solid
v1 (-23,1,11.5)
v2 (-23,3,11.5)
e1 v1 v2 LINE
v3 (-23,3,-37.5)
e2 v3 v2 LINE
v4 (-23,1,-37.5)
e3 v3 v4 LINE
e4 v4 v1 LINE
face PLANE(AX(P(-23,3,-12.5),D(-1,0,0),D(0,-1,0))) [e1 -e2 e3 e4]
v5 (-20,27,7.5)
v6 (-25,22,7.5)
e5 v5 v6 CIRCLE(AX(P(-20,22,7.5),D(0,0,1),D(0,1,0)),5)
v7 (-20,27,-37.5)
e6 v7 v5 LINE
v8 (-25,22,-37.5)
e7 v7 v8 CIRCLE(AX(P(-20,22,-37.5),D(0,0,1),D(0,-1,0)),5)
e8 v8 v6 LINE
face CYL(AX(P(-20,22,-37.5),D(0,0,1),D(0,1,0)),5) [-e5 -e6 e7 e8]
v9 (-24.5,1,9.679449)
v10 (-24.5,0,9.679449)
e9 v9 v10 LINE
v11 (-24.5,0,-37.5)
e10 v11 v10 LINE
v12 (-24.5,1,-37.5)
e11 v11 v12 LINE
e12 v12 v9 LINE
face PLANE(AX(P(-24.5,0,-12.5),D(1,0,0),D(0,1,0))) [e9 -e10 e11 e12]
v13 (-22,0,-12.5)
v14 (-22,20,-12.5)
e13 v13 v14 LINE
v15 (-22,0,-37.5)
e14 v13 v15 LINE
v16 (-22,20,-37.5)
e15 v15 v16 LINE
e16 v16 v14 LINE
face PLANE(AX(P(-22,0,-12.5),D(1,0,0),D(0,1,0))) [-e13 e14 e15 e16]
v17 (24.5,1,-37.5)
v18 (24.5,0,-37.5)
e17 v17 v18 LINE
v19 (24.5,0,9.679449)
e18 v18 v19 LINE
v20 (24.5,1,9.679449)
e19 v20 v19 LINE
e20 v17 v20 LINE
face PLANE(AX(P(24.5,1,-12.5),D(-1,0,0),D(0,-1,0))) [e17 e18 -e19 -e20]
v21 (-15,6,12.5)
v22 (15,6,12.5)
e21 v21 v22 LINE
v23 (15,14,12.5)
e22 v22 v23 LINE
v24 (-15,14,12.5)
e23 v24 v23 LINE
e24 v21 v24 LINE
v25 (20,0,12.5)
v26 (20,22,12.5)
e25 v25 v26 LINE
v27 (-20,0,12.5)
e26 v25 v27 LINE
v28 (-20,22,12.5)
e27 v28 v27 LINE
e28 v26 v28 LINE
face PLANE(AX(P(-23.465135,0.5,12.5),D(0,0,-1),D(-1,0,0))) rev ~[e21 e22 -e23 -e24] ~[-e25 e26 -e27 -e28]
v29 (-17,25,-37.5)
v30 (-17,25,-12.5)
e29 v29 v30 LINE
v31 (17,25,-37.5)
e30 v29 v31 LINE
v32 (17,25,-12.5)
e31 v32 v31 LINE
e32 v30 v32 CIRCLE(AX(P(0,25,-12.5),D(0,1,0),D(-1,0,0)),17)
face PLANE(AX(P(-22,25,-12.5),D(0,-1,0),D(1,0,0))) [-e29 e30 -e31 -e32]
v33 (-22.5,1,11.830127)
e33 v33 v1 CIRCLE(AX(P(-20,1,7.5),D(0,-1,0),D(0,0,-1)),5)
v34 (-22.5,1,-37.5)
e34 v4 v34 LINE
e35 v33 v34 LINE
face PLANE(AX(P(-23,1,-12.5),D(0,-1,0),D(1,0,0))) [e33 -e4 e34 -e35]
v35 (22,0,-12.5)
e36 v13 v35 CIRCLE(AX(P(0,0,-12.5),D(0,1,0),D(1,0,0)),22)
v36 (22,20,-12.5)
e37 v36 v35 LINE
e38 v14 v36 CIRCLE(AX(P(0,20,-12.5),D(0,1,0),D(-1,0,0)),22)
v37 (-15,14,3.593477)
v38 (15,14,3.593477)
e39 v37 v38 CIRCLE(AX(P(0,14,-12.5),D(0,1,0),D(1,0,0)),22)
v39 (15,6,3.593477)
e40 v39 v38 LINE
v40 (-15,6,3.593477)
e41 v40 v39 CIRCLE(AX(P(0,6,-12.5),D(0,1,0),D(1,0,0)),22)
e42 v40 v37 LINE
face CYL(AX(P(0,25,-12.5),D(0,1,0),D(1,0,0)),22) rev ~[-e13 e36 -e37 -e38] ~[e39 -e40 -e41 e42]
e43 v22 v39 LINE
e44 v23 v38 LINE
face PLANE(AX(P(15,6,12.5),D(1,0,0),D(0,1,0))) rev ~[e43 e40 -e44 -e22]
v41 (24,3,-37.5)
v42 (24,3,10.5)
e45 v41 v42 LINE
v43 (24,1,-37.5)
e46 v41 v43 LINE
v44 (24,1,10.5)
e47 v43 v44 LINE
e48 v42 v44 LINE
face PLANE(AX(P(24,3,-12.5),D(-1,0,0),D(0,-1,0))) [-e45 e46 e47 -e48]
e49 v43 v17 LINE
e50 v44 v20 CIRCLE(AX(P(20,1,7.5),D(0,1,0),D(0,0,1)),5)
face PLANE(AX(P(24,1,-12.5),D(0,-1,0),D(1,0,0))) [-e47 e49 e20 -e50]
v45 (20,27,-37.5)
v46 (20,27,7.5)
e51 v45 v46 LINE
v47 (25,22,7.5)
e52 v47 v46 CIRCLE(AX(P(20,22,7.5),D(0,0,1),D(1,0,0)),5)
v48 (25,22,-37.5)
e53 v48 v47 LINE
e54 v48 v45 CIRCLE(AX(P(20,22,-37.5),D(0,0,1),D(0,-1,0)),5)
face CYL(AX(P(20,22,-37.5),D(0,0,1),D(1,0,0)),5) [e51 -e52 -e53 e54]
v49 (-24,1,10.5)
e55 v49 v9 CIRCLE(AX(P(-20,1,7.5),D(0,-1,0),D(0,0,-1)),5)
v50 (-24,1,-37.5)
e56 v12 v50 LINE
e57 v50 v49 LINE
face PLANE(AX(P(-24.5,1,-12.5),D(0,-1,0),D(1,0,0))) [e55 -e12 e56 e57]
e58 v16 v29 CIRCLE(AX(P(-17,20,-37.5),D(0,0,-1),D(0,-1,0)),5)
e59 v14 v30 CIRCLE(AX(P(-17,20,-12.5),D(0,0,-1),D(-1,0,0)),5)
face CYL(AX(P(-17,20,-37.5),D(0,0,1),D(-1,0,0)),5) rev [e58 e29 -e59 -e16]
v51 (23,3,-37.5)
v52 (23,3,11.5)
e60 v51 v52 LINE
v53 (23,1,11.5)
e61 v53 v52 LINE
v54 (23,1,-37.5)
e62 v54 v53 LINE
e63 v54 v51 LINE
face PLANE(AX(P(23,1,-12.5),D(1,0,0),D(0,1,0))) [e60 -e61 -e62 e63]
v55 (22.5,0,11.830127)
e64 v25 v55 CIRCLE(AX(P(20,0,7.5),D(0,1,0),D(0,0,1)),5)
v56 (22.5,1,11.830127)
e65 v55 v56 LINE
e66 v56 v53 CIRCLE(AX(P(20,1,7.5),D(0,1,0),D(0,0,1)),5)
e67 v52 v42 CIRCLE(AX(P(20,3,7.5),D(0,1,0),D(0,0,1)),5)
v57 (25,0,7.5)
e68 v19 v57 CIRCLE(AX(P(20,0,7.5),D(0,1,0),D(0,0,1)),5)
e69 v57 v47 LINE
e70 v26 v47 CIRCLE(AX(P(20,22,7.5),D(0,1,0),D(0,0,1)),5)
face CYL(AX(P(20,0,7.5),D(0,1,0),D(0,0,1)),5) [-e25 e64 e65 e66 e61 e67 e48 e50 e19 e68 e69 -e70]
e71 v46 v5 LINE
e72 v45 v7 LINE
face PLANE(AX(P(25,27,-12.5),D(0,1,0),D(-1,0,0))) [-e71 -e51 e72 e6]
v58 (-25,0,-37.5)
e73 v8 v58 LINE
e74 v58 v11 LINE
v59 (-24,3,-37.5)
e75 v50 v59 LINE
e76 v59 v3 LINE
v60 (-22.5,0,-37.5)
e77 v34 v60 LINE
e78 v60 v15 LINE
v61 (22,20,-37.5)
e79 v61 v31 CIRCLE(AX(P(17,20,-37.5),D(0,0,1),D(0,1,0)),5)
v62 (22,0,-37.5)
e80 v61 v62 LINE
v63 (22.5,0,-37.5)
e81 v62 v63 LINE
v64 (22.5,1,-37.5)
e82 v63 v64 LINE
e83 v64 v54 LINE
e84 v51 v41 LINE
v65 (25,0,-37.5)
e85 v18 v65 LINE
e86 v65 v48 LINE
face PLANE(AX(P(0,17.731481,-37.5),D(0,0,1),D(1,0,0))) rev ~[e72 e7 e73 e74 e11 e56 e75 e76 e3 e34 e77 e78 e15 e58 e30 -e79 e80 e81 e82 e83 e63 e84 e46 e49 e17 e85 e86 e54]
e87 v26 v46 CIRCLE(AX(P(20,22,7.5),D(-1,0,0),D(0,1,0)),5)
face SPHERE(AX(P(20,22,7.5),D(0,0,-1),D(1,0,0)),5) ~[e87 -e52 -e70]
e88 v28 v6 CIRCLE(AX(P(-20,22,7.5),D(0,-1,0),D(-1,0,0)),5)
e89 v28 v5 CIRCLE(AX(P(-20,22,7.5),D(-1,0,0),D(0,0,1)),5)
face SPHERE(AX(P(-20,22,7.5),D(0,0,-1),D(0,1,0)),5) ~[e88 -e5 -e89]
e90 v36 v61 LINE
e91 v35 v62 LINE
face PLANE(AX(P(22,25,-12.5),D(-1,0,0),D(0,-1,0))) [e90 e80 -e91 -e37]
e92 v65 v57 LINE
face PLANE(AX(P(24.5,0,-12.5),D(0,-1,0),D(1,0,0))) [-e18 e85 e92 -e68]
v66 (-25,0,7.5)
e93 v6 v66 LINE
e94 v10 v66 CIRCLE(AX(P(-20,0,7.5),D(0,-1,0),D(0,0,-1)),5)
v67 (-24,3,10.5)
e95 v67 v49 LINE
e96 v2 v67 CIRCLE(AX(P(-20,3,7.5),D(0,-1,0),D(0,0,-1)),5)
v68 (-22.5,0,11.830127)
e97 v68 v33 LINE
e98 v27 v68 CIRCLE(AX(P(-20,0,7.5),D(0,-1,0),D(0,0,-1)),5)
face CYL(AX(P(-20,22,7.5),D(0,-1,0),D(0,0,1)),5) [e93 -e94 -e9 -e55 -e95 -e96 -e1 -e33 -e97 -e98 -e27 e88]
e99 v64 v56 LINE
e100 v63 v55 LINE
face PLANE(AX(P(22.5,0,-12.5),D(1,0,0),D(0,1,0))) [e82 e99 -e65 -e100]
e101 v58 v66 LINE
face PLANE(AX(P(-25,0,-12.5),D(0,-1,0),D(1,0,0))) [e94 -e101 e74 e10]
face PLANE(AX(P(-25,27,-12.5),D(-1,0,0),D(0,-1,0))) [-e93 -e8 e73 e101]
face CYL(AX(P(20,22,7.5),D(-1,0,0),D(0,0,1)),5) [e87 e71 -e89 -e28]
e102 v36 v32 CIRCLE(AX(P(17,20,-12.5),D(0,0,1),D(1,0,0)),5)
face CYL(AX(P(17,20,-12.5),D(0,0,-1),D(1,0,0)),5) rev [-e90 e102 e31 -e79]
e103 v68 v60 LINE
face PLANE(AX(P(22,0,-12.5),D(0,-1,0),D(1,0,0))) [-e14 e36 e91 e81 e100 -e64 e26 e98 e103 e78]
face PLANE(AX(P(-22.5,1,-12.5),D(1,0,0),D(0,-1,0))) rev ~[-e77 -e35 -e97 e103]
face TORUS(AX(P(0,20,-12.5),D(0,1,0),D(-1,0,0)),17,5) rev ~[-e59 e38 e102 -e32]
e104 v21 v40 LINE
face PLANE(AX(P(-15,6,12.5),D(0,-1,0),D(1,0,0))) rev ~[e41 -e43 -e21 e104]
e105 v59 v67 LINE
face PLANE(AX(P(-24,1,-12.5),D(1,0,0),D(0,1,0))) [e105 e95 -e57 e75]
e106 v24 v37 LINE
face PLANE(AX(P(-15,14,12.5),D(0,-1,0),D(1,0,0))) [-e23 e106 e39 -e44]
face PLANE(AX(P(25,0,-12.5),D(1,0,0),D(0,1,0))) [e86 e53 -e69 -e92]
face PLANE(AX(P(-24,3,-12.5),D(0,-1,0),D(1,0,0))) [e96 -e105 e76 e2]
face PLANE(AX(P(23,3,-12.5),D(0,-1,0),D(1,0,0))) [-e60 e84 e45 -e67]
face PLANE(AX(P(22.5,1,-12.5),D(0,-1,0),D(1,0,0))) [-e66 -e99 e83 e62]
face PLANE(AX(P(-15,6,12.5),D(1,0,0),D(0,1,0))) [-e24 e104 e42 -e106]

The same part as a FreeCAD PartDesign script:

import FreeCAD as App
import Part
import Sketcher


def edges_at(feature, points):
    """Names of the edges that pass closest to the given points."""
    edges = feature.Shape.Edges
    near = lambda p: min(range(len(edges)), key=lambda i: edges[i].distToShape(Part.Vertex(*p))[0])
    return sorted({f"Edge{near(p) + 1}" for p in points})

doc = App.newDocument("Part")
body = doc.addObject("PartDesign::Body", "Body")

# Sketch on XZ plane
sketch1 = doc.addObject("Sketcher::SketchObject", "Sketch")
body.addObject(sketch1)
sketch1.AttachmentSupport = (doc.XZ_Plane, [""])
sketch1.MapMode = "FlatFace"
sketch1.addGeometry([
    Part.LineSegment(App.Vector(-30, -12, 0), App.Vector(-30, 12, 0)),
    Part.LineSegment(App.Vector(-30, 12, 0), App.Vector(30, 12, 0)),
    Part.LineSegment(App.Vector(30, 12, 0), App.Vector(30, -12, 0)),
    Part.LineSegment(App.Vector(30, -12, 0), App.Vector(-30, -12, 0)),
], False)
sketch1.addConstraint([
    Sketcher.Constraint("Coincident", 0, 2, 1, 1),
    Sketcher.Constraint("Coincident", 1, 2, 2, 1),
    Sketcher.Constraint("Coincident", 2, 2, 3, 1),
    Sketcher.Constraint("Coincident", 3, 2, 0, 1),
    Sketcher.Constraint("Vertical", 0),
    Sketcher.Constraint("Horizontal", 1),
    Sketcher.Constraint("Vertical", 2),
    Sketcher.Constraint("Horizontal", 3),
    Sketcher.Constraint("Symmetric", 0, 2, 2, 2, -1, 1),
    Sketcher.Constraint("DistanceX", 1, 1, 1, 2, 60.0),
    Sketcher.Constraint("DistanceY", 0, 1, 0, 2, 25.0),
])
pad1 = doc.addObject("PartDesign::Pad", "Pad")
body.addObject(pad1)
pad1.Profile = sketch1
pad1.Length = 25
pad1.Reversed = True

# Sketch on XZ plane
sketch2 = doc.addObject("Sketcher::SketchObject", "Sketch001")
body.addObject(sketch2)
sketch2.AttachmentSupport = (doc.XZ_Plane, [""])
sketch2.MapMode = "FlatFace"
sketch2.AttachmentOffset = App.Placement(App.Vector(0, 0, -25), App.Rotation())
sketch2.addGeometry(Part.Circle(App.Vector(0, -12, 0), App.Vector(0, 0, 1), 22), False)
sketch2.addConstraint([
    Sketcher.Constraint("PointOnObject", 0, 3, -2),
    Sketcher.Constraint("Diameter", 0, 44.0),
    Sketcher.Constraint("DistanceY", 0, 3, -1, 1, 12.5),
])
pocket1 = doc.addObject("PartDesign::Pocket", "Pocket")
body.addObject(pocket1)
pocket1.Profile = sketch2
pocket1.Length = 25
pocket1.Reversed = True

# Sketch on YZ plane
sketch3 = doc.addObject("Sketcher::SketchObject", "Sketch002")
body.addObject(sketch3)
sketch3.AttachmentSupport = (doc.YZ_Plane, [""])
sketch3.MapMode = "FlatFace"
sketch3.AttachmentOffset = App.Placement(App.Vector(0, 0, 30), App.Rotation())
sketch3.addGeometry([
    Part.LineSegment(App.Vector(28, 19, 0), App.Vector(-5, 19, 0)),
    Part.LineSegment(App.Vector(-5, 19, 0), App.Vector(-5, -20, 0)),
    Part.LineSegment(App.Vector(-5, -20, 0), App.Vector(28, -20, 0)),
    Part.LineSegment(App.Vector(28, -20, 0), App.Vector(28, 19, 0)),
], False)
sketch3.addConstraint([
    Sketcher.Constraint("Coincident", 0, 2, 1, 1),
    Sketcher.Constraint("Coincident", 1, 2, 2, 1),
    Sketcher.Constraint("Coincident", 2, 2, 3, 1),
    Sketcher.Constraint("Coincident", 3, 2, 0, 1),
    Sketcher.Constraint("Horizontal", 0),
    Sketcher.Constraint("Vertical", 1),
    Sketcher.Constraint("Horizontal", 2),
    Sketcher.Constraint("Vertical", 3),
    Sketcher.Constraint("DistanceX", 0, 2, -1, 1, 4.8034),
    Sketcher.Constraint("DistanceX", 0, 2, 0, 1, 32.545982),
    Sketcher.Constraint("DistanceY", 1, 2, 1, 1, 39.331187),
    Sketcher.Constraint("DistanceY", -1, 1, 0, 2, 18.975573),
])
pocket2 = doc.addObject("PartDesign::Pocket", "Pocket001")
body.addObject(pocket2)
pocket2.Profile = sketch3
pocket2.Length = 5

# Sketch on YZ plane
sketch4 = doc.addObject("Sketcher::SketchObject", "Sketch003")
body.addObject(sketch4)
sketch4.AttachmentSupport = (doc.YZ_Plane, [""])
sketch4.MapMode = "FlatFace"
sketch4.AttachmentOffset = App.Placement(App.Vector(0, 0, -30), App.Rotation())
sketch4.addGeometry([
    Part.LineSegment(App.Vector(39, -41, 0), App.Vector(-8, -41, 0)),
    Part.LineSegment(App.Vector(-8, -41, 0), App.Vector(-8, 31, 0)),
    Part.LineSegment(App.Vector(-8, 31, 0), App.Vector(39, 31, 0)),
    Part.LineSegment(App.Vector(39, 31, 0), App.Vector(39, -41, 0)),
], False)
sketch4.addConstraint([
    Sketcher.Constraint("Coincident", 0, 2, 1, 1),
    Sketcher.Constraint("Coincident", 1, 2, 2, 1),
    Sketcher.Constraint("Coincident", 2, 2, 3, 1),
    Sketcher.Constraint("Coincident", 3, 2, 0, 1),
    Sketcher.Constraint("Horizontal", 0),
    Sketcher.Constraint("Vertical", 1),
    Sketcher.Constraint("Horizontal", 2),
    Sketcher.Constraint("Vertical", 3),
    Sketcher.Constraint("DistanceX", 0, 2, 0, 1, 47.315534),
    Sketcher.Constraint("DistanceY", 1, 1, 1, 2, 71.754195),
    Sketcher.Constraint("DistanceY", 0, 2, -1, 1, 41.211542),
    Sketcher.Constraint("DistanceX", 0, 2, -1, 1, 8.492727),
])
pocket3 = doc.addObject("PartDesign::Pocket", "Pocket002")
body.addObject(pocket3)
pocket3.Profile = sketch4
pocket3.Length = 5
pocket3.Reversed = True

# Sketch on XZ plane
sketch5 = doc.addObject("Sketcher::SketchObject", "Sketch004")
body.addObject(sketch5)
sketch5.AttachmentSupport = (doc.XZ_Plane, [""])
sketch5.MapMode = "FlatFace"
sketch5.AttachmentOffset = App.Placement(App.Vector(0, 0, -25), App.Rotation())
sketch5.addGeometry([
    Part.LineSegment(App.Vector(-25, -12, 0), App.Vector(-25, 12, 0)),
    Part.LineSegment(App.Vector(-25, 12, 0), App.Vector(25, 12, 0)),
    Part.LineSegment(App.Vector(25, 12, 0), App.Vector(25, -12, 0)),
    Part.LineSegment(App.Vector(25, -12, 0), App.Vector(-25, -12, 0)),
], False)
sketch5.addConstraint([
    Sketcher.Constraint("Coincident", 0, 2, 1, 1),
    Sketcher.Constraint("Coincident", 1, 2, 2, 1),
    Sketcher.Constraint("Coincident", 2, 2, 3, 1),
    Sketcher.Constraint("Coincident", 3, 2, 0, 1),
    Sketcher.Constraint("Vertical", 0),
    Sketcher.Constraint("Horizontal", 1),
    Sketcher.Constraint("Vertical", 2),
    Sketcher.Constraint("Horizontal", 3),
    Sketcher.Constraint("Symmetric", 0, 2, 2, 2, -1, 1),
    Sketcher.Constraint("DistanceX", 1, 1, 1, 2, 50.0),
    Sketcher.Constraint("DistanceY", 0, 1, 0, 2, 25.0),
])
pad2 = doc.addObject("PartDesign::Pad", "Pad001")
body.addObject(pad2)
pad2.Profile = sketch5
pad2.Length = 2
pad2.Reversed = True

# Sketch on XY plane
sketch6 = doc.addObject("Sketcher::SketchObject", "Sketch005")
body.addObject(sketch6)
sketch6.AttachmentSupport = (doc.XY_Plane, [""])
sketch6.MapMode = "FlatFace"
sketch6.AttachmentOffset = App.Placement(App.Vector(0, 0, -12.5), App.Rotation())
sketch6.addGeometry([
    Part.LineSegment(App.Vector(23, 0, 0), App.Vector(23, 3, 0)),  # 0
    Part.LineSegment(App.Vector(23, 3, 0), App.Vector(24, 3, 0)),  # 1
    Part.LineSegment(App.Vector(24, 3, 0), App.Vector(24, 0, 0)),  # 2
    Part.LineSegment(App.Vector(24, 0, 0), App.Vector(23, 0, 0)),  # 3
    Part.LineSegment(App.Vector(-23, 0, 0), App.Vector(-24, 0, 0)),  # 4
    Part.LineSegment(App.Vector(-24, 0, 0), App.Vector(-24, 3, 0)),  # 5
    Part.LineSegment(App.Vector(-24, 3, 0), App.Vector(-23, 3, 0)),  # 6
    Part.LineSegment(App.Vector(-23, 3, 0), App.Vector(-23, 0, 0)),  # 7
], False)
sketch6.addConstraint([
    Sketcher.Constraint("Coincident", 0, 2, 1, 1),
    Sketcher.Constraint("Coincident", 1, 2, 2, 1),
    Sketcher.Constraint("Coincident", 2, 2, 3, 1),
    Sketcher.Constraint("Coincident", 3, 2, 0, 1),
    Sketcher.Constraint("Coincident", 4, 2, 5, 1),
    Sketcher.Constraint("Coincident", 5, 2, 6, 1),
    Sketcher.Constraint("Coincident", 6, 2, 7, 1),
    Sketcher.Constraint("Coincident", 7, 2, 4, 1),
    Sketcher.Constraint("Vertical", 0),
    Sketcher.Constraint("Horizontal", 1),
    Sketcher.Constraint("Vertical", 2),
    Sketcher.Constraint("Horizontal", 3),
    Sketcher.Constraint("Horizontal", 4),
    Sketcher.Constraint("Vertical", 5),
    Sketcher.Constraint("Horizontal", 6),
    Sketcher.Constraint("Vertical", 7),
    Sketcher.Constraint("Symmetric", 2, 2, 4, 2, -1, 1),
    Sketcher.Constraint("Symmetric", 0, 2, 6, 2, -2),
    Sketcher.Constraint("PointOnObject", 2, 2, -1),
    Sketcher.Constraint("DistanceX", 1, 1, 1, 2, 1.0),
    Sketcher.Constraint("DistanceY", 0, 1, 0, 2, 3.0),
    Sketcher.Constraint("DistanceX", -1, 1, 0, 2, 23.0),
])
pocket4 = doc.addObject("PartDesign::Pocket", "Pocket003")
body.addObject(pocket4)
pocket4.Profile = sketch6
pocket4.Length = 38
pocket4.Reversed = True

# Sketch on XY plane
sketch7 = doc.addObject("Sketcher::SketchObject", "Sketch006")
body.addObject(sketch7)
sketch7.AttachmentSupport = (doc.XY_Plane, [""])
sketch7.MapMode = "FlatFace"
sketch7.AttachmentOffset = App.Placement(App.Vector(0, 0, -12.5), App.Rotation())
sketch7.addGeometry([
    Part.LineSegment(App.Vector(-24.5, 0, 0), App.Vector(-24.5, 1, 0)),  # 0
    Part.LineSegment(App.Vector(-24.5, 1, 0), App.Vector(-22.5, 1, 0)),  # 1
    Part.LineSegment(App.Vector(-22.5, 1, 0), App.Vector(-22.5, 0, 0)),  # 2
    Part.LineSegment(App.Vector(-22.5, 0, 0), App.Vector(-24.5, 0, 0)),  # 3
    Part.LineSegment(App.Vector(22.5, 0, 0), App.Vector(22.5, 1, 0)),  # 4
    Part.LineSegment(App.Vector(22.5, 1, 0), App.Vector(24.5, 1, 0)),  # 5
    Part.LineSegment(App.Vector(24.5, 1, 0), App.Vector(24.5, 0, 0)),  # 6
    Part.LineSegment(App.Vector(24.5, 0, 0), App.Vector(22.5, 0, 0)),  # 7
], False)
sketch7.addConstraint([
    Sketcher.Constraint("Coincident", 0, 2, 1, 1),
    Sketcher.Constraint("Coincident", 1, 2, 2, 1),
    Sketcher.Constraint("Coincident", 2, 2, 3, 1),
    Sketcher.Constraint("Coincident", 3, 2, 0, 1),
    Sketcher.Constraint("Coincident", 4, 2, 5, 1),
    Sketcher.Constraint("Coincident", 5, 2, 6, 1),
    Sketcher.Constraint("Coincident", 6, 2, 7, 1),
    Sketcher.Constraint("Coincident", 7, 2, 4, 1),
    Sketcher.Constraint("Vertical", 0),
    Sketcher.Constraint("Horizontal", 1),
    Sketcher.Constraint("Vertical", 2),
    Sketcher.Constraint("Horizontal", 3),
    Sketcher.Constraint("Vertical", 4),
    Sketcher.Constraint("Horizontal", 5),
    Sketcher.Constraint("Vertical", 6),
    Sketcher.Constraint("Horizontal", 7),
    Sketcher.Constraint("Symmetric", 3, 2, 6, 2, -1, 1),
    Sketcher.Constraint("Symmetric", 1, 2, 4, 2, -2),
    Sketcher.Constraint("PointOnObject", 2, 2, -1),
    Sketcher.Constraint("DistanceX", 1, 1, 1, 2, 2.0),
    Sketcher.Constraint("DistanceY", 0, 1, 0, 2, 1.0),
    Sketcher.Constraint("DistanceX", 1, 2, 4, 2, 44.93027),
])
pocket5 = doc.addObject("PartDesign::Pocket", "Pocket004")
body.addObject(pocket5)
pocket5.Profile = sketch7
pocket5.Length = 31
pocket5.Reversed = True

# Sketch on XY plane
sketch8 = doc.addObject("Sketcher::SketchObject", "Sketch007")
body.addObject(sketch8)
sketch8.AttachmentSupport = (doc.XY_Plane, [""])
sketch8.MapMode = "FlatFace"
sketch8.AttachmentOffset = App.Placement(App.Vector(0, 0, -12.5), App.Rotation())
sketch8.addGeometry([
    Part.LineSegment(App.Vector(-22.47, 1, 0), App.Vector(-22.47, 0, 0)),  # 0
    Part.LineSegment(App.Vector(-22.47, 0, 0), App.Vector(-24.47, 0, 0)),  # 1
    Part.LineSegment(App.Vector(-24.47, 0, 0), App.Vector(-24.47, 1, 0)),  # 2
    Part.LineSegment(App.Vector(-24.47, 1, 0), App.Vector(-24, 1, 0)),  # 3
    Part.LineSegment(App.Vector(-24, 1, 0), App.Vector(-24, 3, 0)),  # 4
    Part.LineSegment(App.Vector(-24, 3, 0), App.Vector(-23, 3, 0)),  # 5
    Part.LineSegment(App.Vector(-23, 3, 0), App.Vector(-23, 1, 0)),  # 6
    Part.LineSegment(App.Vector(-23, 1, 0), App.Vector(-22.47, 1, 0)),  # 7
    Part.LineSegment(App.Vector(24.47, 1, 0), App.Vector(24.47, 0, 0)),  # 8
    Part.LineSegment(App.Vector(24.47, 0, 0), App.Vector(22.47, 0, 0)),  # 9
    Part.LineSegment(App.Vector(22.47, 0, 0), App.Vector(22.47, 1, 0)),  # 10
    Part.LineSegment(App.Vector(22.47, 1, 0), App.Vector(23, 1, 0)),  # 11
    Part.LineSegment(App.Vector(23, 1, 0), App.Vector(23, 3, 0)),  # 12
    Part.LineSegment(App.Vector(23, 3, 0), App.Vector(24, 3, 0)),  # 13
    Part.LineSegment(App.Vector(24, 3, 0), App.Vector(24, 1, 0)),  # 14
    Part.LineSegment(App.Vector(24, 1, 0), App.Vector(24.47, 1, 0)),  # 15
], False)
sketch8.addConstraint([
    Sketcher.Constraint("Coincident", 0, 2, 1, 1),
    Sketcher.Constraint("Coincident", 1, 2, 2, 1),
    Sketcher.Constraint("Coincident", 2, 2, 3, 1),
    Sketcher.Constraint("Coincident", 3, 2, 4, 1),
    Sketcher.Constraint("Coincident", 4, 2, 5, 1),
    Sketcher.Constraint("Coincident", 5, 2, 6, 1),
    Sketcher.Constraint("Coincident", 6, 2, 7, 1),
    Sketcher.Constraint("Coincident", 7, 2, 0, 1),
    Sketcher.Constraint("Coincident", 8, 2, 9, 1),
    Sketcher.Constraint("Coincident", 9, 2, 10, 1),
    Sketcher.Constraint("Coincident", 10, 2, 11, 1),
    Sketcher.Constraint("Coincident", 11, 2, 12, 1),
    Sketcher.Constraint("Coincident", 12, 2, 13, 1),
    Sketcher.Constraint("Coincident", 13, 2, 14, 1),
    Sketcher.Constraint("Coincident", 14, 2, 15, 1),
    Sketcher.Constraint("Coincident", 15, 2, 8, 1),
    Sketcher.Constraint("Vertical", 0),
    Sketcher.Constraint("Horizontal", 1),
    Sketcher.Constraint("Vertical", 2),
    Sketcher.Constraint("Horizontal", 3),
    Sketcher.Constraint("Vertical", 4),
    Sketcher.Constraint("Horizontal", 5),
    Sketcher.Constraint("Vertical", 6),
    Sketcher.Constraint("Horizontal", 7),
    Sketcher.Constraint("Vertical", 8),
    Sketcher.Constraint("Horizontal", 9),
    Sketcher.Constraint("Vertical", 10),
    Sketcher.Constraint("Horizontal", 11),
    Sketcher.Constraint("Vertical", 12),
    Sketcher.Constraint("Horizontal", 13),
    Sketcher.Constraint("Vertical", 14),
    Sketcher.Constraint("Horizontal", 15),
    Sketcher.Constraint("Symmetric", 1, 2, 8, 2, -1, 1),
    Sketcher.Constraint("Symmetric", 0, 2, 9, 2, -2),
    Sketcher.Constraint("Symmetric", 6, 2, 11, 2, -2),
    Sketcher.Constraint("Symmetric", 4, 2, 13, 2, -2),
    Sketcher.Constraint("Horizontal", 3, 2, 6, 2),
    Sketcher.Constraint("Horizontal", 11, 2, 14, 2),
    Sketcher.Constraint("Equal", 13, 0),
    Sketcher.Constraint("Equal", 9, 4),
    Sketcher.Constraint("DistanceX", 1, 2, 1, 1, 2.0),
    Sketcher.Constraint("DistanceX", 5, 1, 5, 2, 1.0),
    Sketcher.Constraint("DistanceX", 3, 2, -1, 1, 24.0),
    Sketcher.Constraint("DistanceX", 3, 1, 3, 2, 0.465135),
])
pad3 = doc.addObject("PartDesign::Pad", "Pad002")
body.addObject(pad3)
pad3.Profile = sketch8
pad3.Length = 25

# Sketch on XY plane
sketch9 = doc.addObject("Sketcher::SketchObject", "Sketch008")
body.addObject(sketch9)
sketch9.AttachmentSupport = (doc.XY_Plane, [""])
sketch9.MapMode = "FlatFace"
sketch9.AttachmentOffset = App.Placement(App.Vector(0, 0, -12.5), App.Rotation())
sketch9.addGeometry([
    Part.LineSegment(App.Vector(24.5, 0, 0), App.Vector(22.5, 0, 0)),  # 0
    Part.LineSegment(App.Vector(22.5, 0, 0), App.Vector(22.5, 1, 0)),  # 1
    Part.LineSegment(App.Vector(22.5, 1, 0), App.Vector(23, 1, 0)),  # 2
    Part.LineSegment(App.Vector(23, 1, 0), App.Vector(23, 3, 0)),  # 3
    Part.LineSegment(App.Vector(23, 3, 0), App.Vector(24, 3, 0)),  # 4
    Part.LineSegment(App.Vector(24, 3, 0), App.Vector(24, 1, 0)),  # 5
    Part.LineSegment(App.Vector(24, 1, 0), App.Vector(24.5, 1, 0)),  # 6
    Part.LineSegment(App.Vector(24.5, 1, 0), App.Vector(24.5, 0, 0)),  # 7
    Part.LineSegment(App.Vector(-24, 3, 0), App.Vector(-23, 3, 0)),  # 8
    Part.LineSegment(App.Vector(-23, 3, 0), App.Vector(-23, 1, 0)),  # 9
    Part.LineSegment(App.Vector(-23, 1, 0), App.Vector(-22.5, 1, 0)),  # 10
    Part.LineSegment(App.Vector(-22.5, 1, 0), App.Vector(-22.5, 0, 0)),  # 11
    Part.LineSegment(App.Vector(-22.5, 0, 0), App.Vector(-24.5, 0, 0)),  # 12
    Part.LineSegment(App.Vector(-24.5, 0, 0), App.Vector(-24.5, 1, 0)),  # 13
    Part.LineSegment(App.Vector(-24.5, 1, 0), App.Vector(-24, 1, 0)),  # 14
    Part.LineSegment(App.Vector(-24, 1, 0), App.Vector(-24, 3, 0)),  # 15
], False)
sketch9.addConstraint([
    Sketcher.Constraint("Coincident", 0, 2, 1, 1),
    Sketcher.Constraint("Coincident", 1, 2, 2, 1),
    Sketcher.Constraint("Coincident", 2, 2, 3, 1),
    Sketcher.Constraint("Coincident", 3, 2, 4, 1),
    Sketcher.Constraint("Coincident", 4, 2, 5, 1),
    Sketcher.Constraint("Coincident", 5, 2, 6, 1),
    Sketcher.Constraint("Coincident", 6, 2, 7, 1),
    Sketcher.Constraint("Coincident", 7, 2, 0, 1),
    Sketcher.Constraint("Coincident", 8, 2, 9, 1),
    Sketcher.Constraint("Coincident", 9, 2, 10, 1),
    Sketcher.Constraint("Coincident", 10, 2, 11, 1),
    Sketcher.Constraint("Coincident", 11, 2, 12, 1),
    Sketcher.Constraint("Coincident", 12, 2, 13, 1),
    Sketcher.Constraint("Coincident", 13, 2, 14, 1),
    Sketcher.Constraint("Coincident", 14, 2, 15, 1),
    Sketcher.Constraint("Coincident", 15, 2, 8, 1),
    Sketcher.Constraint("Horizontal", 0),
    Sketcher.Constraint("Vertical", 1),
    Sketcher.Constraint("Horizontal", 2),
    Sketcher.Constraint("Vertical", 3),
    Sketcher.Constraint("Horizontal", 4),
    Sketcher.Constraint("Vertical", 5),
    Sketcher.Constraint("Horizontal", 6),
    Sketcher.Constraint("Vertical", 7),
    Sketcher.Constraint("Horizontal", 8),
    Sketcher.Constraint("Vertical", 9),
    Sketcher.Constraint("Horizontal", 10),
    Sketcher.Constraint("Vertical", 11),
    Sketcher.Constraint("Horizontal", 12),
    Sketcher.Constraint("Vertical", 13),
    Sketcher.Constraint("Horizontal", 14),
    Sketcher.Constraint("Vertical", 15),
    Sketcher.Constraint("Symmetric", 0, 2, 11, 2, -1, 1),
    Sketcher.Constraint("Symmetric", 3, 2, 8, 2, -2),
    Sketcher.Constraint("Symmetric", 7, 2, 12, 2, -2),
    Sketcher.Constraint("Symmetric", 5, 2, 14, 2, -2),
    Sketcher.Constraint("Horizontal", 2, 2, 5, 2),
    Sketcher.Constraint("Horizontal", 6, 2, 9, 2),
    Sketcher.Constraint("Equal", 2, 6),
    Sketcher.Constraint("Equal", 8, 1),
    Sketcher.Constraint("Equal", 12, 3),
    Sketcher.Constraint("DistanceX", 0, 2, 0, 1, 2.0),
    Sketcher.Constraint("DistanceX", 4, 1, 4, 2, 1.0),
    Sketcher.Constraint("DistanceX", -1, 1, 2, 2, 23.0),
])
pocket6 = doc.addObject("PartDesign::Pocket", "Pocket005")
body.addObject(pocket6)
pocket6.Profile = sketch9
pocket6.Length = 25
pocket6.Reversed = True

# Sketch on XY plane
sketch10 = doc.addObject("Sketcher::SketchObject", "Sketch009")
body.addObject(sketch10)
sketch10.AttachmentSupport = (doc.XY_Plane, [""])
sketch10.MapMode = "FlatFace"
sketch10.AttachmentOffset = App.Placement(App.Vector(0, 0, -12.5), App.Rotation())
sketch10.addGeometry([
    Part.LineSegment(App.Vector(22.5, 0, 0), App.Vector(22, 0, 0)),  # 0
    Part.LineSegment(App.Vector(22, 0, 0), App.Vector(22, 25, 0)),  # 1
    Part.LineSegment(App.Vector(22, 25, 0), App.Vector(-22, 25, 0)),  # 2
    Part.LineSegment(App.Vector(-22, 25, 0), App.Vector(-22, 0, 0)),  # 3
    Part.LineSegment(App.Vector(-22, 0, 0), App.Vector(-22.5, 0, 0)),  # 4
    Part.LineSegment(App.Vector(-22.5, 0, 0), App.Vector(-22.5, 1, 0)),  # 5
    Part.LineSegment(App.Vector(-22.5, 1, 0), App.Vector(-23, 1, 0)),  # 6
    Part.LineSegment(App.Vector(-23, 1, 0), App.Vector(-23, 3, 0)),  # 7
    Part.LineSegment(App.Vector(-23, 3, 0), App.Vector(-24, 3, 0)),  # 8
    Part.LineSegment(App.Vector(-24, 3, 0), App.Vector(-24, 1, 0)),  # 9
    Part.LineSegment(App.Vector(-24, 1, 0), App.Vector(-24.5, 1, 0)),  # 10
    Part.LineSegment(App.Vector(-24.5, 1, 0), App.Vector(-24.5, 0, 0)),  # 11
    Part.LineSegment(App.Vector(-24.5, 0, 0), App.Vector(-25, 0, 0)),  # 12
    Part.LineSegment(App.Vector(-25, 0, 0), App.Vector(-25, 27, 0)),  # 13
    Part.LineSegment(App.Vector(-25, 27, 0), App.Vector(25, 27, 0)),  # 14
    Part.LineSegment(App.Vector(25, 27, 0), App.Vector(25, 0, 0)),  # 15
    Part.LineSegment(App.Vector(25, 0, 0), App.Vector(24.5, 0, 0)),  # 16
    Part.LineSegment(App.Vector(24.5, 0, 0), App.Vector(24.5, 1, 0)),  # 17
    Part.LineSegment(App.Vector(24.5, 1, 0), App.Vector(24, 1, 0)),  # 18
    Part.LineSegment(App.Vector(24, 1, 0), App.Vector(24, 3, 0)),  # 19
    Part.LineSegment(App.Vector(24, 3, 0), App.Vector(23, 3, 0)),  # 20
    Part.LineSegment(App.Vector(23, 3, 0), App.Vector(23, 1, 0)),  # 21
    Part.LineSegment(App.Vector(23, 1, 0), App.Vector(22.5, 1, 0)),  # 22
    Part.LineSegment(App.Vector(22.5, 1, 0), App.Vector(22.5, 0, 0)),  # 23
], False)
sketch10.addConstraint([
    Sketcher.Constraint("Coincident", 0, 2, 1, 1),
    Sketcher.Constraint("Coincident", 1, 2, 2, 1),
    Sketcher.Constraint("Coincident", 2, 2, 3, 1),
    Sketcher.Constraint("Coincident", 3, 2, 4, 1),
    Sketcher.Constraint("Coincident", 4, 2, 5, 1),
    Sketcher.Constraint("Coincident", 5, 2, 6, 1),
    Sketcher.Constraint("Coincident", 6, 2, 7, 1),
    Sketcher.Constraint("Coincident", 7, 2, 8, 1),
    Sketcher.Constraint("Coincident", 8, 2, 9, 1),
    Sketcher.Constraint("Coincident", 9, 2, 10, 1),
    Sketcher.Constraint("Coincident", 10, 2, 11, 1),
    Sketcher.Constraint("Coincident", 11, 2, 12, 1),
    Sketcher.Constraint("Coincident", 12, 2, 13, 1),
    Sketcher.Constraint("Coincident", 13, 2, 14, 1),
    Sketcher.Constraint("Coincident", 14, 2, 15, 1),
    Sketcher.Constraint("Coincident", 15, 2, 16, 1),
    Sketcher.Constraint("Coincident", 16, 2, 17, 1),
    Sketcher.Constraint("Coincident", 17, 2, 18, 1),
    Sketcher.Constraint("Coincident", 18, 2, 19, 1),
    Sketcher.Constraint("Coincident", 19, 2, 20, 1),
    Sketcher.Constraint("Coincident", 20, 2, 21, 1),
    Sketcher.Constraint("Coincident", 21, 2, 22, 1),
    Sketcher.Constraint("Coincident", 22, 2, 23, 1),
    Sketcher.Constraint("Coincident", 23, 2, 0, 1),
    Sketcher.Constraint("Horizontal", 0),
    Sketcher.Constraint("Vertical", 1),
    Sketcher.Constraint("Horizontal", 2),
    Sketcher.Constraint("Vertical", 3),
    Sketcher.Constraint("Horizontal", 4),
    Sketcher.Constraint("Vertical", 5),
    Sketcher.Constraint("Horizontal", 6),
    Sketcher.Constraint("Vertical", 7),
    Sketcher.Constraint("Horizontal", 8),
    Sketcher.Constraint("Vertical", 9),
    Sketcher.Constraint("Horizontal", 10),
    Sketcher.Constraint("Vertical", 11),
    Sketcher.Constraint("Horizontal", 12),
    Sketcher.Constraint("Vertical", 13),
    Sketcher.Constraint("Horizontal", 14),
    Sketcher.Constraint("Vertical", 15),
    Sketcher.Constraint("Horizontal", 16),
    Sketcher.Constraint("Vertical", 17),
    Sketcher.Constraint("Horizontal", 18),
    Sketcher.Constraint("Vertical", 19),
    Sketcher.Constraint("Horizontal", 20),
    Sketcher.Constraint("Vertical", 21),
    Sketcher.Constraint("Horizontal", 22),
    Sketcher.Constraint("Vertical", 23),
    Sketcher.Constraint("Symmetric", 0, 2, 3, 2, -1, 1),
    Sketcher.Constraint("Symmetric", 12, 2, 15, 2, -1, 1),
    Sketcher.Constraint("Symmetric", 11, 2, 16, 2, -2),
    Sketcher.Constraint("Symmetric", 9, 2, 18, 2, -2),
    Sketcher.Constraint("Symmetric", 7, 2, 20, 2, -2),
    Sketcher.Constraint("Symmetric", 5, 2, 22, 2, -2),
    Sketcher.Constraint("PointOnObject", 0, 2, -1),
    Sketcher.Constraint("Horizontal", 6, 2, 9, 2),
    Sketcher.Constraint("Equal", 4, 6),
    Sketcher.Constraint("Equal", 6, 10),
    Sketcher.Constraint("Equal", 10, 12),
    Sketcher.Constraint("Equal", 20, 5),
    Sketcher.Constraint("DistanceX", 2, 2, 2, 1, 44.0),
    Sketcher.Constraint("DistanceX", 8, 2, 8, 1, 1.0),
    Sketcher.Constraint("DistanceX", 14, 1, 14, 2, 50.0),
    Sketcher.Constraint("DistanceY", 1, 1, 1, 2, 25.0),
    Sketcher.Constraint("DistanceY", 7, 1, 7, 2, 2.0),
    Sketcher.Constraint("DistanceY", 13, 1, 13, 2, 27.0),
])
pad4 = doc.addObject("PartDesign::Pad", "Pad003")
body.addObject(pad4)
pad4.Profile = sketch10
pad4.Length = 25
pad4.Reversed = True

# Sketch on XY plane
sketch11 = doc.addObject("Sketcher::SketchObject", "Sketch010")
body.addObject(sketch11)
sketch11.AttachmentSupport = (doc.XY_Plane, [""])
sketch11.MapMode = "FlatFace"
sketch11.AttachmentOffset = App.Placement(App.Vector(0, 0, 12.5), App.Rotation())
sketch11.addGeometry([
    Part.LineSegment(App.Vector(-15, 14, 0), App.Vector(-15, 6, 0)),
    Part.LineSegment(App.Vector(-15, 6, 0), App.Vector(15, 6, 0)),
    Part.LineSegment(App.Vector(15, 6, 0), App.Vector(15, 14, 0)),
    Part.LineSegment(App.Vector(15, 14, 0), App.Vector(-15, 14, 0)),
], False)
sketch11.addConstraint([
    Sketcher.Constraint("Coincident", 0, 2, 1, 1),
    Sketcher.Constraint("Coincident", 1, 2, 2, 1),
    Sketcher.Constraint("Coincident", 2, 2, 3, 1),
    Sketcher.Constraint("Coincident", 3, 2, 0, 1),
    Sketcher.Constraint("Vertical", 0),
    Sketcher.Constraint("Horizontal", 1),
    Sketcher.Constraint("Vertical", 2),
    Sketcher.Constraint("Horizontal", 3),
    Sketcher.Constraint("DistanceX", 1, 1, 1, 2, 30.0),
    Sketcher.Constraint("DistanceY", 0, 2, 0, 1, 8.0),
    Sketcher.Constraint("DistanceX", 0, 2, -1, 1, 15.0),
    Sketcher.Constraint("DistanceY", -1, 1, 0, 2, 6.0),
])
pocket7 = doc.addObject("PartDesign::Pocket", "Pocket006")
body.addObject(pocket7)
pocket7.Profile = sketch11
pocket7.Length = 22
doc.recompute()

fillet = doc.addObject("PartDesign::Fillet", "Fillet")
body.addObject(fillet)
fillet.Base = (pocket7, edges_at(pocket7, [
    (0, 25, 9.5),
    (-22, 25, -25),
    (22, 25, -25),
    (-25, 27, -12.5),
    (25, 27, -12.5),
]))
fillet.Radius = 5
doc.recompute()

fillet2 = doc.addObject("PartDesign::Fillet", "Fillet001")
body.addObject(fillet2)
fillet2.Base = (fillet, edges_at(fillet, [
    (-23.536, 25.536, 12.5),
    (23.536, 25.536, 12.5),
    (-25, 11, 12.5),
    (0, 27, 12.5),
    (25, 11, 12.5),
]))
fillet2.Radius = 5

doc.recompute()
